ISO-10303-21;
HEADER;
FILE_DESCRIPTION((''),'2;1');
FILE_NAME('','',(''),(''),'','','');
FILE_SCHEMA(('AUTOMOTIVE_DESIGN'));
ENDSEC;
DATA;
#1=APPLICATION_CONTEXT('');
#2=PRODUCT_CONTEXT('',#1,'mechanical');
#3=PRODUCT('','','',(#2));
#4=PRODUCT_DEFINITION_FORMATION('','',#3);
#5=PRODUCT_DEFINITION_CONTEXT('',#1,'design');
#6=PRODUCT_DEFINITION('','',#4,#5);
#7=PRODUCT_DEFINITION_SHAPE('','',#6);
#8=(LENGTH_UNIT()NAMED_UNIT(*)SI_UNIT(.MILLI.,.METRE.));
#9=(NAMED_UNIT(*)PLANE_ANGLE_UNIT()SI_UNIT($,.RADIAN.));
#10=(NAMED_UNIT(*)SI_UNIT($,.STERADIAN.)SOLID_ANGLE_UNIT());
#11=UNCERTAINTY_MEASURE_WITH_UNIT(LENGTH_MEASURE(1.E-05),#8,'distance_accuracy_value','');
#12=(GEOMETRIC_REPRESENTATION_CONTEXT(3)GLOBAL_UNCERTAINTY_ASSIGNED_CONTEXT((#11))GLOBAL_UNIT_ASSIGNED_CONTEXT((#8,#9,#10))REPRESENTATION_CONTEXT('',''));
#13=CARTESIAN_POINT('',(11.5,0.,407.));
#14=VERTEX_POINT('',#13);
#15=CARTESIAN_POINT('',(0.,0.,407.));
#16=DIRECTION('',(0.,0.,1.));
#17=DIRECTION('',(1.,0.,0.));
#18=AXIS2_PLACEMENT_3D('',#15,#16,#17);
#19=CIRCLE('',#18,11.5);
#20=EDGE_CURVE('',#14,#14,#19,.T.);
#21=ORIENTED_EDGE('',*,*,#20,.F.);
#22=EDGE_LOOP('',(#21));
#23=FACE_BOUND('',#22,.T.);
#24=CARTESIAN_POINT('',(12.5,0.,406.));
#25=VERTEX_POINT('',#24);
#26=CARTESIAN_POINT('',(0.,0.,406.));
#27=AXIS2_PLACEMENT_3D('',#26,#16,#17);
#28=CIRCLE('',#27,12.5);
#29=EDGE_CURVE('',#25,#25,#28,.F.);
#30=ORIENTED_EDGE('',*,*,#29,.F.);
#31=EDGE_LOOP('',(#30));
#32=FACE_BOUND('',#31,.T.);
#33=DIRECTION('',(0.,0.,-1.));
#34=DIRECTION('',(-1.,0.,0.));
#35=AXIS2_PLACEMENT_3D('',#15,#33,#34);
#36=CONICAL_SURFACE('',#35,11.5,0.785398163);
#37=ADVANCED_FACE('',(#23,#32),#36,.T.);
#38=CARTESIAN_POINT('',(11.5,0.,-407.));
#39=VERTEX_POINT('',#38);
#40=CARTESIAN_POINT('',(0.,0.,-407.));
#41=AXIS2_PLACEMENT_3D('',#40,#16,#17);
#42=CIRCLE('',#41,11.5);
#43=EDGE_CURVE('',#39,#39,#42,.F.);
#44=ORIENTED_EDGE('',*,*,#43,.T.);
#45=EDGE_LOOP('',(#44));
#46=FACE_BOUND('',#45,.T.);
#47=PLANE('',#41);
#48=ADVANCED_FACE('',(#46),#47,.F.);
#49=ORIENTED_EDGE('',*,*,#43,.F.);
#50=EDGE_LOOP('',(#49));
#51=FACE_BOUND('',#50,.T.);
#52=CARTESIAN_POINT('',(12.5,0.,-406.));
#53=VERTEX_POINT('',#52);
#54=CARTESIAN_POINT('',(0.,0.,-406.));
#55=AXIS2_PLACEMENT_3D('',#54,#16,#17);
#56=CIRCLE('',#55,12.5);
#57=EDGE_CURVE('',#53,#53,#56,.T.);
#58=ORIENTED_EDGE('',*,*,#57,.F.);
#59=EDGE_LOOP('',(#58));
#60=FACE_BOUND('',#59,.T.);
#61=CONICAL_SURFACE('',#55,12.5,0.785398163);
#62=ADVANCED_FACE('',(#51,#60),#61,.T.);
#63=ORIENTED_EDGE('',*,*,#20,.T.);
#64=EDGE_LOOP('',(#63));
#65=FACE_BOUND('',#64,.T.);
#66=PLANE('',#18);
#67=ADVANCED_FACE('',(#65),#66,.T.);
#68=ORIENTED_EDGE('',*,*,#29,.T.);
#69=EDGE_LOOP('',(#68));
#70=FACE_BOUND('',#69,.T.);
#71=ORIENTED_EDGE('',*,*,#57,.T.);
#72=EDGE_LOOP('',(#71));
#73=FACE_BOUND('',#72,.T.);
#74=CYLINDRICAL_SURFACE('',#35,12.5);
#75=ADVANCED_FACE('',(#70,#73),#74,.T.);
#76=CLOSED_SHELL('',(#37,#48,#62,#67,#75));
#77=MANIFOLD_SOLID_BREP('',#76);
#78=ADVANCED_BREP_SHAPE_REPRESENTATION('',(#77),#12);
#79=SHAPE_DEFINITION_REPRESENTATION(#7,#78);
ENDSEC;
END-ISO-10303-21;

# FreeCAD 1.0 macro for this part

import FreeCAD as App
import Part
import Sketcher

V = App.Vector
Q = App.Units.Quantity


def edges_at(feature, points):
    """Names of the edges that pass closest to the given points."""
    edges = feature.Shape.Edges
    near = lambda p: min(range(len(edges)), key=lambda i: edges[i].distToShape(Part.Vertex(*p))[0])
    return sorted({f"Edge{near(p) + 1}" for p in points})

doc = App.newDocument("Part")
body = doc.addObject("PartDesign::Body", "Body")

# Sketch on XY plane
sketch1 = body.newObject("Sketcher::SketchObject", "Sketch")
sketch1.AttachmentSupport = (doc.getObject("XY_Plane"), [""])
sketch1.MapMode = "FlatFace"
sketch1.addGeometry(Part.Circle(V(0, 0, 0), V(0, 0, 1), 12), False)
sketch1.addConstraint([
    Sketcher.Constraint("Coincident", 0, 3, -1, 1),
    Sketcher.Constraint("Diameter", 0, Q("25 mm")),
])
pad1 = body.newObject("PartDesign::Pad", "Pad")
pad1.Profile = sketch1
pad1.Length = 814
pad1.Midplane = True
doc.recompute()

chamfer = body.newObject("PartDesign::Chamfer", "Chamfer")
chamfer.Base = (pad1, edges_at(pad1, [(-12.5, 0, -407), (-12.5, 0, 407)]))
chamfer.Size = 1

doc.recompute()
